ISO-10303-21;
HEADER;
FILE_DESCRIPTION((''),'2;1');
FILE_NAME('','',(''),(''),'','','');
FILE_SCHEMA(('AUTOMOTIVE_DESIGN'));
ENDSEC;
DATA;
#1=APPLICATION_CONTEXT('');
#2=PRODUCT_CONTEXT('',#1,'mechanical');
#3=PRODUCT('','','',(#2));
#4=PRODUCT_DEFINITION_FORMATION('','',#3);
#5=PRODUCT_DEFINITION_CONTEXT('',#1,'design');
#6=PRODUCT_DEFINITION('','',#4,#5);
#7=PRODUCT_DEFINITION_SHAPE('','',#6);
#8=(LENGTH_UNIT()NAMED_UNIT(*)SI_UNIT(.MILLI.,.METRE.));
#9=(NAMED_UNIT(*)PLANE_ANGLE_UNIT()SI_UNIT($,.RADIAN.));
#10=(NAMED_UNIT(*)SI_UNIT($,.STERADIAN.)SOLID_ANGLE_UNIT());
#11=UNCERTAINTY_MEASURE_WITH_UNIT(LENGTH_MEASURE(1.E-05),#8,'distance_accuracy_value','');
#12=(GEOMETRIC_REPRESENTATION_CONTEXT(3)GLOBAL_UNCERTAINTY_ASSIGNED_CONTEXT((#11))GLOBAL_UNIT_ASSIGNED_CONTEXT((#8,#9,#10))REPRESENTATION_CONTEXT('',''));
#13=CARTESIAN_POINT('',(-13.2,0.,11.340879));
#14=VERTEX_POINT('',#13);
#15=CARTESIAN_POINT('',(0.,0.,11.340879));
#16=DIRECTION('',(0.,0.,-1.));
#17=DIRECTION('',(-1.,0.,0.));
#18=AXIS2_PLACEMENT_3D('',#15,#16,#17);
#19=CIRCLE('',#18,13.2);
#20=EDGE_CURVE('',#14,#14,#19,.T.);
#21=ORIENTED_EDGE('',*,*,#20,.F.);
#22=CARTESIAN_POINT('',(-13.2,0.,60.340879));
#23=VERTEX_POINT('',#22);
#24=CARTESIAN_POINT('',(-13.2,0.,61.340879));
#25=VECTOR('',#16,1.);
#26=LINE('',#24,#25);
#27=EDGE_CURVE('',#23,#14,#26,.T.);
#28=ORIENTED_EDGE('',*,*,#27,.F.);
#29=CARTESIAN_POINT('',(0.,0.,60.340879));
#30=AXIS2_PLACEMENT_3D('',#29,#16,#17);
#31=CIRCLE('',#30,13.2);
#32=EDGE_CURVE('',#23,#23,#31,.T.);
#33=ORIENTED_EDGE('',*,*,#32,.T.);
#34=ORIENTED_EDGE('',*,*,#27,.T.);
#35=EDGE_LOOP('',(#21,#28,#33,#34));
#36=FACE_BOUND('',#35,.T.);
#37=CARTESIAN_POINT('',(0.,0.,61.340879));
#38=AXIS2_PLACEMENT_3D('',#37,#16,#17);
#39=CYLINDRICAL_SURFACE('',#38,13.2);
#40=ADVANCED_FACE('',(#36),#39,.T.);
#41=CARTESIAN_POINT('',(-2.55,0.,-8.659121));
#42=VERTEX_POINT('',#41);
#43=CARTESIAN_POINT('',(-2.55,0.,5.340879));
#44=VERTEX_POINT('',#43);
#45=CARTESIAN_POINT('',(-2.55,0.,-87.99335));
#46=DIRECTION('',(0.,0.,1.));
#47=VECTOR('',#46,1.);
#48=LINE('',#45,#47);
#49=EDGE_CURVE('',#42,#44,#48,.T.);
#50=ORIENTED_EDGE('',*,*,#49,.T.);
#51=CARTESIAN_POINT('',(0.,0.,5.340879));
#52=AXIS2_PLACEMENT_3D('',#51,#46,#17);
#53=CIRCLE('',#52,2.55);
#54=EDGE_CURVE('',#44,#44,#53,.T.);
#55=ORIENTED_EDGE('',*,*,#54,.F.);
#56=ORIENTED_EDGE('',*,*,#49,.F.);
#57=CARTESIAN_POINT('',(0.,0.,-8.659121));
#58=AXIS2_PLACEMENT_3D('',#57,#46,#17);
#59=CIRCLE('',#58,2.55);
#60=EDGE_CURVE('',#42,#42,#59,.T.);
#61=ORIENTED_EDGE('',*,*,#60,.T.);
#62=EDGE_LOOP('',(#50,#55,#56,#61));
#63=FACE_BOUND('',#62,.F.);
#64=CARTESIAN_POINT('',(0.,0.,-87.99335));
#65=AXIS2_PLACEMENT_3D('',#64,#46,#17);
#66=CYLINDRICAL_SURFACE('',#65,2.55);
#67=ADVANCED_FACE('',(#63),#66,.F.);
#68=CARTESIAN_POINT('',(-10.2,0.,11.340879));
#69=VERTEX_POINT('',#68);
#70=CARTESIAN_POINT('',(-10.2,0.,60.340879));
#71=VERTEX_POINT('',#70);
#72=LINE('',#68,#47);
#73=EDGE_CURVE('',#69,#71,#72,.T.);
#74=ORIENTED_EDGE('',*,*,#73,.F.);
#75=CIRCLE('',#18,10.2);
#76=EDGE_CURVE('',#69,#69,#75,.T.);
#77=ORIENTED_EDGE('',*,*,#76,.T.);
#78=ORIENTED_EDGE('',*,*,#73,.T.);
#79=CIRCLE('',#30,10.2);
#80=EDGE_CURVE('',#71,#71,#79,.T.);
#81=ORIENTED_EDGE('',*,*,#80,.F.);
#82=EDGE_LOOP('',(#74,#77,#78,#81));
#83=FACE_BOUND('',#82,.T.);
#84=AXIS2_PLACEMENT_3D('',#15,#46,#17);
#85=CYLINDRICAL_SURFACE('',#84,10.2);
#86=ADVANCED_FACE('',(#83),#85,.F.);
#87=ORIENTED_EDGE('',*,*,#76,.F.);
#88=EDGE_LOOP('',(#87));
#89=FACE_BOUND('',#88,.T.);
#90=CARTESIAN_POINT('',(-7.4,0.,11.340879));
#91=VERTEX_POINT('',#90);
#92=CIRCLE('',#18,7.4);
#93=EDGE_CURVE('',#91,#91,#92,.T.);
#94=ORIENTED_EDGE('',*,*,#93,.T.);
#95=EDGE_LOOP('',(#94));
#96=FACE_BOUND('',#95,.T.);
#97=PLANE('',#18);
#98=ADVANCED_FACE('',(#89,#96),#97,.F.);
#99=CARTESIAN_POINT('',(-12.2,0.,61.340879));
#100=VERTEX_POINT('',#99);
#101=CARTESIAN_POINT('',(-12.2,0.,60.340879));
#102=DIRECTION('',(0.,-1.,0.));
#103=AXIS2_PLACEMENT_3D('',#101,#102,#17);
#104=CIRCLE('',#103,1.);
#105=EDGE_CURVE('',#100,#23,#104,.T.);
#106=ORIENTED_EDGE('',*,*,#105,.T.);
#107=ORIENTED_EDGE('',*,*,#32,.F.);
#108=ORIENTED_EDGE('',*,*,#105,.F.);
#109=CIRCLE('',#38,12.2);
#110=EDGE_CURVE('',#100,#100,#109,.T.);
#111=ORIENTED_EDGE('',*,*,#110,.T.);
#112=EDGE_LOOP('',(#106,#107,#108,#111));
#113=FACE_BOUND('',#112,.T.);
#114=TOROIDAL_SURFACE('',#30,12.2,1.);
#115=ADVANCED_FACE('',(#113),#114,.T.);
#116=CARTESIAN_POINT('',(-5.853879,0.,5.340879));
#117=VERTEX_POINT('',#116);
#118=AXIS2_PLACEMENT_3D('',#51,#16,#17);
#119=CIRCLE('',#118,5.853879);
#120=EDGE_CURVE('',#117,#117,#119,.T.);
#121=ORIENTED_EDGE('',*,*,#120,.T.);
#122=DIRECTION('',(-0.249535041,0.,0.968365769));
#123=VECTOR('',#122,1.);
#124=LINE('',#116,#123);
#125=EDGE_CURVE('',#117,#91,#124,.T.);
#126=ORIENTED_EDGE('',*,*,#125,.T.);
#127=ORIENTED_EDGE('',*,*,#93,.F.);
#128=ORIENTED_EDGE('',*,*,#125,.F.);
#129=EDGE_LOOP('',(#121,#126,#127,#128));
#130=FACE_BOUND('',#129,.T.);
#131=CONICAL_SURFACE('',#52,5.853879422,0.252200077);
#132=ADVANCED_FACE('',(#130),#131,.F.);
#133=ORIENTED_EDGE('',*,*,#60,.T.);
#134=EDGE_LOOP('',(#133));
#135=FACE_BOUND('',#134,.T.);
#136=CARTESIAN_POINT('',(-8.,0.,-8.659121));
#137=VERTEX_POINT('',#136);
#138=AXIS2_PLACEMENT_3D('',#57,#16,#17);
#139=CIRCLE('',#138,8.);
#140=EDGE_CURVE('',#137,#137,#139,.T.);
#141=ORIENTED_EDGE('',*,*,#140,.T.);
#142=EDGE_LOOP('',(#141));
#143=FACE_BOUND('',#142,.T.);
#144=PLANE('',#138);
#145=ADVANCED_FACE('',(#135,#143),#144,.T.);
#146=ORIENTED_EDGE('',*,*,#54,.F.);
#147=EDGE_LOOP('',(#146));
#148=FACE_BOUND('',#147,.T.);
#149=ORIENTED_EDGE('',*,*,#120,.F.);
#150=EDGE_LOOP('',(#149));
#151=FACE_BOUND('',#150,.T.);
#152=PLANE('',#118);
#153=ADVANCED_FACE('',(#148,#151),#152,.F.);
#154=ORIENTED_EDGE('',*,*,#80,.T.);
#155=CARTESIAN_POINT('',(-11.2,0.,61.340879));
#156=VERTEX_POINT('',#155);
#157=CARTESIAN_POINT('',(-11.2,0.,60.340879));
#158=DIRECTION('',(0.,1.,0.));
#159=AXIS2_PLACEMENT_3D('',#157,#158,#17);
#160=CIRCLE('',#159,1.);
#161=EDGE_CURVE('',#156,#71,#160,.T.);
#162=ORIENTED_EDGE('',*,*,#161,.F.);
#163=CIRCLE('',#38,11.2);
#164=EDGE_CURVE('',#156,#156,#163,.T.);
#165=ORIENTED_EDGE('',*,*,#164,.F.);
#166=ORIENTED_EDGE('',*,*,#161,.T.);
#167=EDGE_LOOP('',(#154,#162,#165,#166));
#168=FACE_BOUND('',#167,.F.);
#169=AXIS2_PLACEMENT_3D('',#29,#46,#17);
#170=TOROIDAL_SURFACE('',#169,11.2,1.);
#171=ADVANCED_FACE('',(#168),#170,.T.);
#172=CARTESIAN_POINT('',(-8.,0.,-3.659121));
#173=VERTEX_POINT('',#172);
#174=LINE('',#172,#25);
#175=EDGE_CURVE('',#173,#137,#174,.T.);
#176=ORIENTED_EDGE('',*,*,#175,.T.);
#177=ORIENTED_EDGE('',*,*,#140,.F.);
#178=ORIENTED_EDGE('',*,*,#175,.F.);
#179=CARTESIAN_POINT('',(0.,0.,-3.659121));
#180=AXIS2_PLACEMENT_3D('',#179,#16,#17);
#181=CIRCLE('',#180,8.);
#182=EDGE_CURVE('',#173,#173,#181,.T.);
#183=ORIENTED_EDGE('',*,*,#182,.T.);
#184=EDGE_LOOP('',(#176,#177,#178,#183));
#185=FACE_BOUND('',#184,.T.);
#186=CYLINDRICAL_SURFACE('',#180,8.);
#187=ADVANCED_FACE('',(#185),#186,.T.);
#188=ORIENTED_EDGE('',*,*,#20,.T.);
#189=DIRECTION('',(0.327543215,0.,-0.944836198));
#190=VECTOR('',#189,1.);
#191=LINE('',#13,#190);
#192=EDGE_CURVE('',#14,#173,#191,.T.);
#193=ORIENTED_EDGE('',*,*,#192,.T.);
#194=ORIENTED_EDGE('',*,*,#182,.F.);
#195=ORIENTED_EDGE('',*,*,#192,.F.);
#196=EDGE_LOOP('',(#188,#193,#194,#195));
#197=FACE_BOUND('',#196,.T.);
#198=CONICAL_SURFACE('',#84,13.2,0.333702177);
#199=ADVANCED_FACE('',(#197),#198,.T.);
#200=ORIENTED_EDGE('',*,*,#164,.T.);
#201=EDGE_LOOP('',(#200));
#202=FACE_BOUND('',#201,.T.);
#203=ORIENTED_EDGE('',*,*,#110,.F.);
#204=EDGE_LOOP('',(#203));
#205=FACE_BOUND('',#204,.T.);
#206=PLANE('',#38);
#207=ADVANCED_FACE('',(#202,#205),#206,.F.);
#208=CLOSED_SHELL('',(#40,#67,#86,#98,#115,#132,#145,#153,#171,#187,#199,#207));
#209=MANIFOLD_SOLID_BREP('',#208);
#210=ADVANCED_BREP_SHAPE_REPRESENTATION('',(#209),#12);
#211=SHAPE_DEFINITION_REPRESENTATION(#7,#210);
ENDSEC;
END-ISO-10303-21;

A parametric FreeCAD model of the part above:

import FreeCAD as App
import Part
import Sketcher

V = App.Vector
Q = App.Units.Quantity


def edges_at(feature, points):
    """Names of the edges that pass closest to the given points."""
    edges = feature.Shape.Edges
    near = lambda p: min(range(len(edges)), key=lambda i: edges[i].distToShape(Part.Vertex(*p))[0])
    return sorted({f"Edge{near(p) + 1}" for p in points})

doc = App.newDocument("Part")
body = doc.addObject("PartDesign::Body", "Body")

sketch1 = doc.addObject("Sketcher::SketchObject", "Sketch")
body.addObject(sketch1)
sketch1.AttachmentSupport = (doc.XZ_Plane, [""])
sketch1.MapMode = "FlatFace"
sketch1.addGeometry(Part.LineSegment(V(-10.2, 61.3, 0), V(-13.2, 61.3, 0)), False)
sketch1.addGeometry(Part.LineSegment(V(-13.2, 61.3, 0), V(-13.2, 11.3, 0)), False)
sketch1.addGeometry(Part.LineSegment(V(-13.2, 11.3, 0), V(-8, -3.7, 0)), False)
sketch1.addGeometry(Part.LineSegment(V(-8, -3.7, 0), V(-8, -8.7, 0)), False)
sketch1.addGeometry(Part.LineSegment(V(-8, -8.7, 0), V(0, -8.7, 0)), False)
sketch1.addGeometry(Part.LineSegment(V(0, -8.7, 0), V(0, 5.3, 0)), False)
sketch1.addGeometry(Part.LineSegment(V(0, 5.3, 0), V(-5.9, 5.3, 0)), False)
sketch1.addGeometry(Part.LineSegment(V(-5.9, 5.3, 0), V(-7.4, 11.3, 0)), False)
sketch1.addGeometry(Part.LineSegment(V(-7.4, 11.3, 0), V(-10.2, 11.3, 0)), False)
sketch1.addGeometry(Part.LineSegment(V(-10.2, 11.3, 0), V(-10.2, 61.3, 0)), False)
sketch1.addConstraint(Sketcher.Constraint("Coincident", 0, 2, 1, 1))
sketch1.addConstraint(Sketcher.Constraint("Coincident", 1, 2, 2, 1))
sketch1.addConstraint(Sketcher.Constraint("Coincident", 2, 2, 3, 1))
sketch1.addConstraint(Sketcher.Constraint("Coincident", 3, 2, 4, 1))
sketch1.addConstraint(Sketcher.Constraint("Coincident", 4, 2, 5, 1))
sketch1.addConstraint(Sketcher.Constraint("Coincident", 5, 2, 6, 1))
sketch1.addConstraint(Sketcher.Constraint("Coincident", 6, 2, 7, 1))
sketch1.addConstraint(Sketcher.Constraint("Coincident", 7, 2, 8, 1))
sketch1.addConstraint(Sketcher.Constraint("Coincident", 8, 2, 9, 1))
sketch1.addConstraint(Sketcher.Constraint("Coincident", 9, 2, 0, 1))
sketch1.addConstraint(Sketcher.Constraint("Horizontal", 0))
sketch1.addConstraint(Sketcher.Constraint("Vertical", 1))
sketch1.addConstraint(Sketcher.Constraint("Vertical", 3))
sketch1.addConstraint(Sketcher.Constraint("Horizontal", 4))
sketch1.addConstraint(Sketcher.Constraint("Vertical", 5))
sketch1.addConstraint(Sketcher.Constraint("Horizontal", 6))
sketch1.addConstraint(Sketcher.Constraint("Horizontal", 8))
sketch1.addConstraint(Sketcher.Constraint("Vertical", 9))
sketch1.addConstraint(Sketcher.Constraint("PointOnObject", 4, 2, -2))
sketch1.addConstraint(Sketcher.Constraint("Horizontal", 1, 2, 7, 2))
sketch1.addConstraint(Sketcher.Constraint("DistanceX", 0, 2, 0, 1, Q("3 mm")))
sketch1.addConstraint(Sketcher.Constraint("DistanceX", 4, 1, 4, 2, Q("8 mm")))
sketch1.addConstraint(Sketcher.Constraint("DistanceY", 1, 2, 1, 1, Q("50 mm")))
sketch1.addConstraint(Sketcher.Constraint("DistanceY", 3, 2, 3, 1, Q("5 mm")))
sketch1.addConstraint(Sketcher.Constraint("DistanceY", 5, 1, 5, 2, Q("14 mm")))
sketch1.addConstraint(Sketcher.Constraint("DistanceX", 8, 2, 8, 1, Q("2.8 mm")))
sketch1.addConstraint(Sketcher.Constraint("DistanceY", 2, 2, 1, 2, Q("15 mm")))
sketch1.addConstraint(Sketcher.Constraint("DistanceX", 0, 2, -1, 1, Q("13.2 mm")))
sketch1.addConstraint(Sketcher.Constraint("Angle", 7, Q("104.45 deg")))
sketch1.addConstraint(Sketcher.Constraint("DistanceY", -1, 1, 0, 2, Q("61.340879 mm")))
revolution = doc.addObject("PartDesign::Revolution", "Revolution")
body.addObject(revolution)
revolution.Profile = sketch1
revolution.ReferenceAxis = (sketch1, ["V_Axis"])
revolution.Angle = 360
doc.recompute()

fillet = doc.addObject("PartDesign::Fillet", "Fillet")
body.addObject(fillet)
fillet.Base = (revolution, edges_at(revolution, [(13.2, 0, 61.341), (10.2, 0, 61.341)]))
fillet.Radius = 1

sketch2 = doc.addObject("Sketcher::SketchObject", "Sketch001")
body.addObject(sketch2)
sketch2.AttachmentSupport = (doc.XY_Plane, [""])
sketch2.MapMode = "FlatFace"
sketch2.AttachmentOffset = App.Placement(V(0, 0, -8.659121), App.Rotation())
sketch2.addGeometry(Part.Circle(V(0, 0, 0), V(0, 0, 1), 2.5), False)
sketch2.addConstraint(Sketcher.Constraint("Coincident", 0, 3, -1, 1))
sketch2.addConstraint(Sketcher.Constraint("Diameter", 0, Q("5.1 mm")))
doc.recompute()
hole = doc.addObject("PartDesign::Hole", "Hole")
body.addObject(hole)
hole.Profile = sketch2
hole.ThreadType = "None"
hole.Diameter = 5.1
hole.DepthType = "ThroughAll"
hole.Reversed = True

doc.recompute()
